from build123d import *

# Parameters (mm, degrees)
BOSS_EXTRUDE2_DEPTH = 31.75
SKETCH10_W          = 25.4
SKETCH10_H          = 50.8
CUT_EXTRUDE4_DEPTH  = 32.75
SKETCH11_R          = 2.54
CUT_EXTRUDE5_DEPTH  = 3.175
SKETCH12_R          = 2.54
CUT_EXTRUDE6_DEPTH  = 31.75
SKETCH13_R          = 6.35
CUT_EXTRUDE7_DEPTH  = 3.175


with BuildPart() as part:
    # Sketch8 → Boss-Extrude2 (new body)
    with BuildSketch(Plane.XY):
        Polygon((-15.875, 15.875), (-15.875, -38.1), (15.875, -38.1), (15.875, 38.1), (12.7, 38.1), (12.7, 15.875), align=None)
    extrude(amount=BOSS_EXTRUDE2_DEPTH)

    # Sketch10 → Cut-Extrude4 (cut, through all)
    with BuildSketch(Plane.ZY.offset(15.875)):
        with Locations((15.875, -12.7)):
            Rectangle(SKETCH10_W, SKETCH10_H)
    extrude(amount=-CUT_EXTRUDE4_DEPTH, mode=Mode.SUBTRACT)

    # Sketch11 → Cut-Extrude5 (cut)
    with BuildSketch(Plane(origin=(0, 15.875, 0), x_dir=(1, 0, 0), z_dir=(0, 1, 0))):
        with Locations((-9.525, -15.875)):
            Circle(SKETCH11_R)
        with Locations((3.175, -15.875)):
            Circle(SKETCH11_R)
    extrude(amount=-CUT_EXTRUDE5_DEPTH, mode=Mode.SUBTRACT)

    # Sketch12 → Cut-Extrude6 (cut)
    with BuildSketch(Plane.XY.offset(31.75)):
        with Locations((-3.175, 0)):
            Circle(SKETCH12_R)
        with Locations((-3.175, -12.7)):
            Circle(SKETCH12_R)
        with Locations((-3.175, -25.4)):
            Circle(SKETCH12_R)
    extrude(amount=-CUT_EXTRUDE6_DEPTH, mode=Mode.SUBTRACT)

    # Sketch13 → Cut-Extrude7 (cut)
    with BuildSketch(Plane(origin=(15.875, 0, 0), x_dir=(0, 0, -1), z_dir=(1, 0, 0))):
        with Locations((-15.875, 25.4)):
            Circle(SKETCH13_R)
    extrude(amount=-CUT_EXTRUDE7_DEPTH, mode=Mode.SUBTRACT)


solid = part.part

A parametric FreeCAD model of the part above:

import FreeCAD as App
import Part
import Sketcher
from FreeCAD import Vector
Q = App.Units.Quantity

doc = App.newDocument("Part")
body = doc.addObject("PartDesign::Body", "Body")

sketch1 = body.newObject("Sketcher::SketchObject", "Sketch")
sketch1.AttachmentSupport = (doc.getObject("XY_Plane"), [""])
sketch1.MapMode = "FlatFace"
sketch1.addGeometry([
    Part.LineSegment(Vector(-15.875, 15.875, 0), Vector(-15.875, -38.1, 0)),
    Part.LineSegment(Vector(-15.875, -38.1, 0), Vector(15.875, -38.1, 0)),
    Part.LineSegment(Vector(15.875, -38.1, 0), Vector(15.875, 38.1, 0)),
    Part.LineSegment(Vector(15.875, 38.1, 0), Vector(12.7, 38.1, 0)),
    Part.LineSegment(Vector(12.7, 38.1, 0), Vector(12.7, 15.875, 0)),
    Part.LineSegment(Vector(12.7, 15.875, 0), Vector(-15.875, 15.875, 0)),
], False)
sketch1.addConstraint([
    Sketcher.Constraint("Coincident", 0, 2, 1, 1),
    Sketcher.Constraint("Coincident", 1, 2, 2, 1),
    Sketcher.Constraint("Coincident", 2, 2, 3, 1),
    Sketcher.Constraint("Coincident", 3, 2, 4, 1),
    Sketcher.Constraint("Coincident", 4, 2, 5, 1),
    Sketcher.Constraint("Coincident", 5, 2, 0, 1),
    Sketcher.Constraint("Vertical", 0),
    Sketcher.Constraint("Horizontal", 1),
    Sketcher.Constraint("Vertical", 2),
    Sketcher.Constraint("Horizontal", 3),
    Sketcher.Constraint("Vertical", 4),
    Sketcher.Constraint("Horizontal", 5),
    Sketcher.Constraint("Symmetric", 0, 2, 2, 2, -1, 1),
    Sketcher.Constraint("DistanceY", 2, 1, 2, 2, Q("3 in")),
    Sketcher.Constraint("DistanceX", 1, 1, 1, 2, Q("1.25 in")),
    Sketcher.Constraint("DistanceX", -1, 1, 3, 2, Q("0.5 in")),
    Sketcher.Constraint("DistanceY", 0, 2, 0, 1, Q("2.125 in")),
])
pad1 = body.newObject("PartDesign::Pad", "Pad")
pad1.Profile = sketch1
pad1.Length = Q("1.25 in")

sketch2 = body.newObject("Sketcher::SketchObject", "Sketch001")
sketch2.AttachmentSupport = (doc.getObject("YZ_Plane"), [""])
sketch2.MapMode = "FlatFace"
sketch2.AttachmentOffset = App.Placement(Vector(0, 0, -0.625 * 25.4), App.Rotation())
sketch2.addGeometry([
    Part.LineSegment(Vector(12.7, 3.175, 0), Vector(-38.1, 3.175, 0)),
    Part.LineSegment(Vector(-38.1, 3.175, 0), Vector(-38.1, 28.575, 0)),
    Part.LineSegment(Vector(-38.1, 28.575, 0), Vector(12.7, 28.575, 0)),
    Part.LineSegment(Vector(12.7, 28.575, 0), Vector(12.7, 3.175, 0)),
], False)
sketch2.addConstraint([
    Sketcher.Constraint("Coincident", 0, 2, 1, 1),
    Sketcher.Constraint("Coincident", 1, 2, 2, 1),
    Sketcher.Constraint("Coincident", 2, 2, 3, 1),
    Sketcher.Constraint("Coincident", 3, 2, 0, 1),
    Sketcher.Constraint("Horizontal", 0),
    Sketcher.Constraint("Vertical", 1),
    Sketcher.Constraint("Horizontal", 2),
    Sketcher.Constraint("Vertical", 3),
    Sketcher.Constraint("DistanceX", 0, 2, 0, 1, Q("2 in")),
    Sketcher.Constraint("DistanceY", 1, 1, 1, 2, Q("1 in")),
    Sketcher.Constraint("DistanceX", 0, 2, -1, 1, Q("1.5 in")),
    Sketcher.Constraint("DistanceY", -1, 1, 0, 2, Q("0.125 in")),
])
pocket1 = body.newObject("PartDesign::Pocket", "Pocket")
pocket1.Profile = sketch2
pocket1.Type = "ThroughAll"
pocket1.Reversed = True

sketch3 = body.newObject("Sketcher::SketchObject", "Sketch002")
sketch3.AttachmentSupport = (doc.getObject("XZ_Plane"), [""])
sketch3.MapMode = "FlatFace"
sketch3.AttachmentOffset = App.Placement(Vector(0, 0, -0.625 * 25.4), App.Rotation())
sketch3.addGeometry([
    Part.Circle(Vector(-9.525, 15.875, 0), Vector(0, 0, 1), 2.54),
    Part.Circle(Vector(3.175, 15.875, 0), Vector(0, 0, 1), 2.54),
], False)
sketch3.addConstraint([
    Sketcher.Constraint("Equal", 0, 1),
    Sketcher.Constraint("Horizontal", 0, 3, 1, 3),
    Sketcher.Constraint("Diameter", 0, Q("0.2 in")),
    Sketcher.Constraint("DistanceX", 0, 3, 1, 3, Q("0.5 in")),
    Sketcher.Constraint("DistanceX", 0, 3, -1, 1, Q("0.375 in")),
    Sketcher.Constraint("DistanceY", -1, 1, 0, 3, Q("0.625 in")),
])
pocket2 = body.newObject("PartDesign::Pocket", "Pocket001")
pocket2.Profile = sketch3
pocket2.Length = Q("0.125 in")
pocket2.Reversed = True

sketch4 = body.newObject("Sketcher::SketchObject", "Sketch003")
sketch4.AttachmentSupport = (doc.getObject("XY_Plane"), [""])
sketch4.MapMode = "FlatFace"
sketch4.AttachmentOffset = App.Placement(Vector(0, 0, 1.25 * 25.4), App.Rotation())
sketch4.addGeometry([
    Part.Circle(Vector(-3.175, 0, 0), Vector(0, 0, 1), 2.54),
    Part.Circle(Vector(-3.175, -12.7, 0), Vector(0, 0, 1), 2.54),
    Part.Circle(Vector(-3.175, -25.4, 0), Vector(0, 0, 1), 2.54),
], False)
sketch4.addConstraint([
    Sketcher.Constraint("Equal", 0, 1),
    Sketcher.Constraint("Equal", 1, 2),
    Sketcher.Constraint("PointOnObject", 0, 3, -1),
    Sketcher.Constraint("Vertical", 0, 3, 1, 3),
    Sketcher.Constraint("Vertical", 1, 3, 2, 3),
    Sketcher.Constraint("Diameter", 0, Q("0.2 in")),
    Sketcher.Constraint("DistanceY", 2, 3, -1, 1, Q("1 in")),
    Sketcher.Constraint("DistanceY", 1, 3, -1, 1, Q("0.5 in")),
    Sketcher.Constraint("DistanceX", 0, 3, -1, 1, Q("0.125 in")),
])
pocket3 = body.newObject("PartDesign::Pocket", "Pocket002")
pocket3.Profile = sketch4
pocket3.Length = Q("1.25 in")

sketch5 = body.newObject("Sketcher::SketchObject", "Sketch004")
sketch5.AttachmentSupport = (doc.getObject("YZ_Plane"), [""])
sketch5.MapMode = "FlatFace"
sketch5.AttachmentOffset = App.Placement(Vector(0, 0, 0.625 * 25.4), App.Rotation())
sketch5.addGeometry(Part.Circle(Vector(25.4, 15.875, 0), Vector(0, 0, 1), 6.35), False)
sketch5.addConstraint([
    Sketcher.Constraint("Diameter", 0, Q("0.5 in")),
    Sketcher.Constraint("DistanceX", -1, 1, 0, 3, Q("1 in")),
    Sketcher.Constraint("DistanceY", -1, 1, 0, 3, Q("0.625 in")),
])
pocket4 = body.newObject("PartDesign::Pocket", "Pocket003")
pocket4.Profile = sketch5
pocket4.Length = Q("0.125 in")

doc.recompute()
